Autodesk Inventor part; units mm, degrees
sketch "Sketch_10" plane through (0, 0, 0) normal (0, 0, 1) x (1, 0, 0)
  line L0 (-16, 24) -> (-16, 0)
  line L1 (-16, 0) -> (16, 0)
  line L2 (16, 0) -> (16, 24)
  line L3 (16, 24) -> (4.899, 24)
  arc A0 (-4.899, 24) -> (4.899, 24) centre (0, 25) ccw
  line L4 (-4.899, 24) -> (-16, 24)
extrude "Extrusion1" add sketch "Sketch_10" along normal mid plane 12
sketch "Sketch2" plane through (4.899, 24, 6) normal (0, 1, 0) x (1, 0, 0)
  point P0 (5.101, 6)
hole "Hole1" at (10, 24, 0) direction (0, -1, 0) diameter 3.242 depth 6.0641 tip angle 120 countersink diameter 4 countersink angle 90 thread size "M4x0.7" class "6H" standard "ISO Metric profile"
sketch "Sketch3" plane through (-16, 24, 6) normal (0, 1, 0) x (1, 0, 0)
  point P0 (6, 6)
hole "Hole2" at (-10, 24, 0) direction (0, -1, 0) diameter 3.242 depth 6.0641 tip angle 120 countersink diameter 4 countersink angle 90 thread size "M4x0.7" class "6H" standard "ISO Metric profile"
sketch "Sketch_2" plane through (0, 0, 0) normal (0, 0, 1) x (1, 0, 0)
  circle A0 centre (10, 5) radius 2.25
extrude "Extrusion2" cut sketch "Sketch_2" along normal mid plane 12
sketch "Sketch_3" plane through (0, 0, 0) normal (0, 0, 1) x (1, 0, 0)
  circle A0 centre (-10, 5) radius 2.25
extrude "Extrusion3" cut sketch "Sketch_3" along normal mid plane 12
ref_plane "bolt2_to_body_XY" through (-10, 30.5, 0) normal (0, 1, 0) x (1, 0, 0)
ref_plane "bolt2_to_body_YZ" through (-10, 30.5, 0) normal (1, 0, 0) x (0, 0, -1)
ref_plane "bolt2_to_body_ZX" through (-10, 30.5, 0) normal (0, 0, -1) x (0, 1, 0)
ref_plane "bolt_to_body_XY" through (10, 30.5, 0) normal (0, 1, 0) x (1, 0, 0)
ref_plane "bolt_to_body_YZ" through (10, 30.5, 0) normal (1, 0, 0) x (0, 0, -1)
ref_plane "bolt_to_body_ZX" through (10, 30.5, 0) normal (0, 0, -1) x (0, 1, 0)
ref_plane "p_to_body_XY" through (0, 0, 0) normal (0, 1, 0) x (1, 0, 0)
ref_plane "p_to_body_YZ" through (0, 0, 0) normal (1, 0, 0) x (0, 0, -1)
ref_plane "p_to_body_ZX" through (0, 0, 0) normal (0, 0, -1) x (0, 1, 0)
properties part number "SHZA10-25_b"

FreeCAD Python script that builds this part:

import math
import FreeCAD as App
import Part
import Sketcher
Q = App.Units.Quantity

doc = App.newDocument("Part")
params = doc.addObject("Spreadsheet::Sheet", "Params")
for row, (alias, value) in enumerate([
    ("sketch1_radius", "5 mm"),
    ("sketch1_width", "32 mm"),
    ("sketch1_height", "24 mm"),
    ("pad1_length", "12 mm"),
    ("hole_diameter", "3.242 mm"),
    ("hole_depth", "6.0641 mm"),
    ("hole_csink_diameter", "4 mm"),
    ("hole2_diameter", "3.242 mm"),
    ("hole2_depth", "6.0641 mm"),
    ("hole2_csink_diameter", "4 mm"),
    ("sketch4_diameter", "4.5 mm"),
    ("pocket1_length", "12 mm"),
    ("sketch5_diameter", "4.5 mm"),
    ("pocket2_length", "12 mm"),
], start=1):
    params.set(f"A{row}", alias)
    params.set(f"B{row}", "=" + value)
    params.setAlias(f"B{row}", alias)

body = doc.addObject("PartDesign::Body", "Body")

# Sketch on XY plane
sketch1 = body.newObject("Sketcher::SketchObject", "Sketch")
sketch1.AttachmentSupport = (doc.getObject("XY_Plane"), [""])
sketch1.MapMode = "FlatFace"
sketch1.addGeometry(Part.LineSegment(App.Vector(-5, 24, 0), App.Vector(-16, 24, 0)), False)
sketch1.addGeometry(Part.LineSegment(App.Vector(-16, 24, 0), App.Vector(-16, 0, 0)), False)
sketch1.addGeometry(Part.LineSegment(App.Vector(-16, 0, 0), App.Vector(16, 0, 0)), False)
sketch1.addGeometry(Part.LineSegment(App.Vector(16, 0, 0), App.Vector(16, 24, 0)), False)
sketch1.addGeometry(Part.LineSegment(App.Vector(16, 24, 0), App.Vector(5, 24, 0)), False)
sketch1.addGeometry(Part.ArcOfCircle(Part.Circle(App.Vector(0, 25, 0), App.Vector(0, 0, 1), 5), math.radians(-168), math.radians(-12)), False)
sketch1.addConstraint(Sketcher.Constraint("Coincident", 0, 2, 1, 1))
sketch1.addConstraint(Sketcher.Constraint("Coincident", 1, 2, 2, 1))
sketch1.addConstraint(Sketcher.Constraint("Coincident", 2, 2, 3, 1))
sketch1.addConstraint(Sketcher.Constraint("Coincident", 3, 2, 4, 1))
sketch1.addConstraint(Sketcher.Constraint("Coincident", 4, 2, 5, 2))
sketch1.addConstraint(Sketcher.Constraint("Coincident", 5, 1, 0, 1))
sketch1.addConstraint(Sketcher.Constraint("Horizontal", 0))
sketch1.addConstraint(Sketcher.Constraint("Vertical", 1))
sketch1.addConstraint(Sketcher.Constraint("Horizontal", 2))
sketch1.addConstraint(Sketcher.Constraint("Vertical", 3))
sketch1.addConstraint(Sketcher.Constraint("Horizontal", 4))
sketch1.addConstraint(Sketcher.Constraint("Symmetric", 1, 2, 2, 2, -1, 1))
sketch1.addConstraint(Sketcher.Constraint("Symmetric", 4, 2, 5, 1, -2))
sketch1.addConstraint(Sketcher.Constraint("Radius", 5, Q("5 mm")))
sketch1.addConstraint(Sketcher.Constraint("DistanceX", 2, 1, 2, 2, Q("32 mm")))
sketch1.addConstraint(Sketcher.Constraint("DistanceY", 1, 2, 1, 1, Q("24 mm")))
sketch1.addConstraint(Sketcher.Constraint("DistanceY", -1, 1, 5, 3, Q("25 mm")))
sketch1.setExpression("Constraints[13]", "Params.sketch1_radius")
sketch1.setExpression("Constraints[14]", "Params.sketch1_width")
sketch1.setExpression("Constraints[15]", "Params.sketch1_height")
pad1 = body.newObject("PartDesign::Pad", "Pad")
pad1.Profile = sketch1
pad1.setExpression("Length", "Params.pad1_length")
pad1.Midplane = True

# Sketch on XZ plane
sketch2 = body.newObject("Sketcher::SketchObject", "Sketch001")
sketch2.AttachmentSupport = (doc.getObject("XZ_Plane"), [""])
sketch2.MapMode = "FlatFace"
sketch2.AttachmentOffset = App.Placement(App.Vector(0, 0, -24), App.Rotation())
sketch2.addGeometry(Part.Circle(App.Vector(10, 0, 0), App.Vector(0, 0, 1), 1.6), False)
sketch2.addConstraint(Sketcher.Constraint("PointOnObject", 0, 3, -1))
sketch2.addConstraint(Sketcher.Constraint("Diameter", 0, Q("3.242 mm")))
sketch2.addConstraint(Sketcher.Constraint("DistanceX", -1, 1, 0, 3, Q("10 mm")))
doc.recompute()
hole = body.newObject("PartDesign::Hole", "Hole")
hole.Profile = sketch2
hole.ThreadType = "None"
hole.setExpression("Diameter", "Params.hole_diameter")
hole.DepthType = "Dimension"
hole.setExpression("Depth", "Params.hole_depth")
hole.DrillPoint = "Angled"
hole.DrillPointAngle = 120
hole.HoleCutType = "Countersink"
hole.setExpression("HoleCutDiameter", "Params.hole_csink_diameter")
hole.HoleCutCountersinkAngle = 90
hole.Reversed = True

# Sketch on XZ plane
sketch3 = body.newObject("Sketcher::SketchObject", "Sketch002")
sketch3.AttachmentSupport = (doc.getObject("XZ_Plane"), [""])
sketch3.MapMode = "FlatFace"
sketch3.AttachmentOffset = App.Placement(App.Vector(0, 0, -24), App.Rotation())
sketch3.addGeometry(Part.Circle(App.Vector(-10, 0, 0), App.Vector(0, 0, 1), 1.6), False)
sketch3.addConstraint(Sketcher.Constraint("PointOnObject", 0, 3, -1))
sketch3.addConstraint(Sketcher.Constraint("Diameter", 0, Q("3.242 mm")))
sketch3.addConstraint(Sketcher.Constraint("DistanceX", 0, 3, -1, 1, Q("10 mm")))
doc.recompute()
hole2 = body.newObject("PartDesign::Hole", "Hole001")
hole2.Profile = sketch3
hole2.ThreadType = "None"
hole2.setExpression("Diameter", "Params.hole2_diameter")
hole2.DepthType = "Dimension"
hole2.setExpression("Depth", "Params.hole2_depth")
hole2.DrillPoint = "Angled"
hole2.DrillPointAngle = 120
hole2.HoleCutType = "Countersink"
hole2.setExpression("HoleCutDiameter", "Params.hole2_csink_diameter")
hole2.HoleCutCountersinkAngle = 90
hole2.Reversed = True

# Sketch on XY plane
sketch4 = body.newObject("Sketcher::SketchObject", "Sketch003")
sketch4.AttachmentSupport = (doc.getObject("XY_Plane"), [""])
sketch4.MapMode = "FlatFace"
sketch4.addGeometry(Part.Circle(App.Vector(10, 5, 0), App.Vector(0, 0, 1), 2.2), False)
sketch4.addConstraint(Sketcher.Constraint("Diameter", 0, Q("4.5 mm")))
sketch4.addConstraint(Sketcher.Constraint("DistanceX", -1, 1, 0, 3, Q("10 mm")))
sketch4.addConstraint(Sketcher.Constraint("DistanceY", -1, 1, 0, 3, Q("5 mm")))
sketch4.setExpression("Constraints[0]", "Params.sketch4_diameter")
pocket1 = body.newObject("PartDesign::Pocket", "Pocket")
pocket1.Profile = sketch4
pocket1.setExpression("Length", "Params.pocket1_length")
pocket1.Midplane = True

# Sketch on XY plane
sketch5 = body.newObject("Sketcher::SketchObject", "Sketch004")
sketch5.AttachmentSupport = (doc.getObject("XY_Plane"), [""])
sketch5.MapMode = "FlatFace"
sketch5.addGeometry(Part.Circle(App.Vector(-10, 5, 0), App.Vector(0, 0, 1), 2.2), False)
sketch5.addConstraint(Sketcher.Constraint("Diameter", 0, Q("4.5 mm")))
sketch5.addConstraint(Sketcher.Constraint("DistanceX", 0, 3, -1, 1, Q("10 mm")))
sketch5.addConstraint(Sketcher.Constraint("DistanceY", -1, 1, 0, 3, Q("5 mm")))
sketch5.setExpression("Constraints[0]", "Params.sketch5_diameter")
pocket2 = body.newObject("PartDesign::Pocket", "Pocket001")
pocket2.Profile = sketch5
pocket2.setExpression("Length", "Params.pocket2_length")
pocket2.Midplane = True

doc.recompute()
